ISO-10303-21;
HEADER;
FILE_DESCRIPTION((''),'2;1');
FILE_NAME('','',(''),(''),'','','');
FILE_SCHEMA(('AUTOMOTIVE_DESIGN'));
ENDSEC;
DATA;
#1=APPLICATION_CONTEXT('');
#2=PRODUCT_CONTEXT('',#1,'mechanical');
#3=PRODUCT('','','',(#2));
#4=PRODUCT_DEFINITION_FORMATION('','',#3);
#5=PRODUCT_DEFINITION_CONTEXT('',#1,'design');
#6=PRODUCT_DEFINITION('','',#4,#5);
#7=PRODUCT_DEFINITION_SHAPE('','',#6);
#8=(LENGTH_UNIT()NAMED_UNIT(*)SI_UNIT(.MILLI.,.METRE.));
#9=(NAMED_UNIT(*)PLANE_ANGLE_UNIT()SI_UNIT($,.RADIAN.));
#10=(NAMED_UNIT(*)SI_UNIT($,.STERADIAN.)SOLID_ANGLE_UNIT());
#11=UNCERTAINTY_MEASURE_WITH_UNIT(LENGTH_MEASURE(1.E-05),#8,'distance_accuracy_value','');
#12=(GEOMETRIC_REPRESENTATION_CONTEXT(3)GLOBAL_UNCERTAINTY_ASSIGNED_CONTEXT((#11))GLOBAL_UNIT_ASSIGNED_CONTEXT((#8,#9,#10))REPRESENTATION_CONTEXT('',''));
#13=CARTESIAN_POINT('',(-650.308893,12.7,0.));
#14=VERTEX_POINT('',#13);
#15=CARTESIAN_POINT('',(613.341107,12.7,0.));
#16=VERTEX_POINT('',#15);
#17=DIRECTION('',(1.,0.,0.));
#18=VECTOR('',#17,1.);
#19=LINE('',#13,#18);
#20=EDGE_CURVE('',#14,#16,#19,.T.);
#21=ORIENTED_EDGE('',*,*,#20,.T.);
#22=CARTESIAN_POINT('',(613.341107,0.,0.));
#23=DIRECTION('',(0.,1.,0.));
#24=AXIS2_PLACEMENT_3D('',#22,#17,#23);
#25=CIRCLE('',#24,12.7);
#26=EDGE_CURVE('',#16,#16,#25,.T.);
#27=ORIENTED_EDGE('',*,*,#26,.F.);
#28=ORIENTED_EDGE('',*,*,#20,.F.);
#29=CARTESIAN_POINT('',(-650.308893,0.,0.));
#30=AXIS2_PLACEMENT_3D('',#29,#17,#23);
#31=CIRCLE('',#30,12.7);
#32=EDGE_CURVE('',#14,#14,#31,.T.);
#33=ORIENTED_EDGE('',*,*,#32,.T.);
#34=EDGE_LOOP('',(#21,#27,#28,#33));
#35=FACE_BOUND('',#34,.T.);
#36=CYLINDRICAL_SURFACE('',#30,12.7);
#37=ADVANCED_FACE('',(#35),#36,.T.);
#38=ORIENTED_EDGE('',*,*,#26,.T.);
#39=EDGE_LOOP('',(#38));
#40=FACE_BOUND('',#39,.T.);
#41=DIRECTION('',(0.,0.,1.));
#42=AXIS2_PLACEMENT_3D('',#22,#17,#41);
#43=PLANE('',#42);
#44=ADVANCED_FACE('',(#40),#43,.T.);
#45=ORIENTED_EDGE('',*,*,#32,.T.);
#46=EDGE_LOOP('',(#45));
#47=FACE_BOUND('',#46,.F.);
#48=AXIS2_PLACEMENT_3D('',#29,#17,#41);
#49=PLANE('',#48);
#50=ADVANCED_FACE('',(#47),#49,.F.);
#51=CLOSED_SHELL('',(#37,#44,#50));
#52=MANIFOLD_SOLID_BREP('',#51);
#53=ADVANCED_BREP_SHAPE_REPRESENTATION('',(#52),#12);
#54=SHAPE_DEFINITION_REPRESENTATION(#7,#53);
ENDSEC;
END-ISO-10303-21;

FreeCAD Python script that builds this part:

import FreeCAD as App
import Part
import Sketcher

V = App.Vector
Q = App.Units.Quantity

doc = App.newDocument("Part")
body = doc.addObject("PartDesign::Body", "Body")

# Sketch on YZ plane
sketch1 = doc.addObject("Sketcher::SketchObject", "Sketch")
body.addObject(sketch1)
sketch1.AttachmentSupport = (doc.YZ_Plane, [""])
sketch1.MapMode = "FlatFace"
sketch1.AttachmentOffset = App.Placement(V(0, 0, 613.341107), App.Rotation())
sketch1.addGeometry(Part.Circle(V(0, 0, 0), V(0, 0, 1), 13), False)
sketch1.addConstraint([
    Sketcher.Constraint("Coincident", 0, 3, -1, 1),
    Sketcher.Constraint("Diameter", 0, Q("1 in")),
])

# Sketch on XY plane
sketch2 = doc.addObject("Sketcher::SketchObject", "Sketch001")
body.addObject(sketch2)
sketch2.AttachmentSupport = (doc.XY_Plane, [""])
sketch2.MapMode = "FlatFace"
sketch2.addGeometry(Part.LineSegment(V(-650, 0, 0), V(613, 0, 0)), False)
sketch2.addConstraint([
    Sketcher.Constraint("Horizontal", 0),
    Sketcher.Constraint("PointOnObject", 0, 1, -1),
    Sketcher.Constraint("DistanceX", 0, 1, 0, 2, Q("49.75 in")),
    Sketcher.Constraint("DistanceX", 0, 1, -1, 1, 650.308893),
])
doc.recompute()

additivepipe = doc.addObject("PartDesign::AdditivePipe", "AdditivePipe")
body.addObject(additivepipe)
additivepipe.Profile = sketch1
additivepipe.Spine = (sketch2, ["Edge1"])

doc.recompute()
